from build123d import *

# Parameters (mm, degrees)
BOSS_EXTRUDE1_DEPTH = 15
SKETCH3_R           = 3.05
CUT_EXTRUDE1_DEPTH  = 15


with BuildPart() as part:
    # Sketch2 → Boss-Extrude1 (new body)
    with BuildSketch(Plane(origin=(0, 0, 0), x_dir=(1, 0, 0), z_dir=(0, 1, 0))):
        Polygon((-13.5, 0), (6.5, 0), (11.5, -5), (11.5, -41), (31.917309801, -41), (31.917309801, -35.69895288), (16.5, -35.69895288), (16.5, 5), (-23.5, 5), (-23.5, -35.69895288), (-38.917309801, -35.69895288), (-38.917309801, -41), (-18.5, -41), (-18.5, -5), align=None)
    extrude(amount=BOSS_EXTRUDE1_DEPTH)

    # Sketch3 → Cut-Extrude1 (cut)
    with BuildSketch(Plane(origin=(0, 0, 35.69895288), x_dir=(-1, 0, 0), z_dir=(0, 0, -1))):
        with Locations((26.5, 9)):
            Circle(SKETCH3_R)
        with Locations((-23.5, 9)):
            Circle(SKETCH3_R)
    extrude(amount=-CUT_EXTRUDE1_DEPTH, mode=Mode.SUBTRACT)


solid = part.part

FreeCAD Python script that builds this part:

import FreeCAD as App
import Part
import Sketcher
Q = App.Units.Quantity

doc = App.newDocument("Part")
body = doc.addObject("PartDesign::Body", "Body")

sketch1 = doc.addObject("Sketcher::SketchObject", "Sketch")
body.addObject(sketch1)
sketch1.AttachmentSupport = (doc.XZ_Plane, [""])
sketch1.MapMode = "FlatFace"
sketch1.addGeometry([
    Part.LineSegment(App.Vector(-14, 0, 0), App.Vector(6, 0, 0)),
    Part.LineSegment(App.Vector(6, 0, 0), App.Vector(12, 5, 0)),
    Part.LineSegment(App.Vector(12, 5, 0), App.Vector(12, 41, 0)),
    Part.LineSegment(App.Vector(12, 41, 0), App.Vector(32, 41, 0)),
    Part.LineSegment(App.Vector(32, 41, 0), App.Vector(32, 36, 0)),
    Part.LineSegment(App.Vector(32, 36, 0), App.Vector(16, 36, 0)),
    Part.LineSegment(App.Vector(16, 36, 0), App.Vector(16, -5, 0)),
    Part.LineSegment(App.Vector(16, -5, 0), App.Vector(-24, -5, 0)),
    Part.LineSegment(App.Vector(-24, -5, 0), App.Vector(-24, 36, 0)),
    Part.LineSegment(App.Vector(-24, 36, 0), App.Vector(-39, 36, 0)),
    Part.LineSegment(App.Vector(-39, 36, 0), App.Vector(-39, 41, 0)),
    Part.LineSegment(App.Vector(-39, 41, 0), App.Vector(-18, 41, 0)),
    Part.LineSegment(App.Vector(-18, 41, 0), App.Vector(-18, 5, 0)),
    Part.LineSegment(App.Vector(-18, 5, 0), App.Vector(-14, 0, 0)),
], False)
sketch1.addConstraint([
    Sketcher.Constraint("Coincident", 0, 2, 1, 1),
    Sketcher.Constraint("Coincident", 1, 2, 2, 1),
    Sketcher.Constraint("Coincident", 2, 2, 3, 1),
    Sketcher.Constraint("Coincident", 3, 2, 4, 1),
    Sketcher.Constraint("Coincident", 4, 2, 5, 1),
    Sketcher.Constraint("Coincident", 5, 2, 6, 1),
    Sketcher.Constraint("Coincident", 6, 2, 7, 1),
    Sketcher.Constraint("Coincident", 7, 2, 8, 1),
    Sketcher.Constraint("Coincident", 8, 2, 9, 1),
    Sketcher.Constraint("Coincident", 9, 2, 10, 1),
    Sketcher.Constraint("Coincident", 10, 2, 11, 1),
    Sketcher.Constraint("Coincident", 11, 2, 12, 1),
    Sketcher.Constraint("Coincident", 12, 2, 13, 1),
    Sketcher.Constraint("Coincident", 13, 2, 0, 1),
    Sketcher.Constraint("Horizontal", 0),
    Sketcher.Constraint("Vertical", 2),
    Sketcher.Constraint("Horizontal", 3),
    Sketcher.Constraint("Vertical", 4),
    Sketcher.Constraint("Horizontal", 5),
    Sketcher.Constraint("Vertical", 6),
    Sketcher.Constraint("Horizontal", 7),
    Sketcher.Constraint("Vertical", 8),
    Sketcher.Constraint("Horizontal", 9),
    Sketcher.Constraint("Vertical", 10),
    Sketcher.Constraint("Horizontal", 11),
    Sketcher.Constraint("Vertical", 12),
    Sketcher.Constraint("PointOnObject", 0, 2, -1),
    Sketcher.Constraint("Perpendicular", 1, 13),
    Sketcher.Constraint("Horizontal", 5, 2, 8, 2),
    Sketcher.Constraint("Horizontal", 3, 2, 10, 2),
    Sketcher.Constraint("Horizontal", 1, 2, 12, 2),
    Sketcher.Constraint("Equal", 5, 9),
    Sketcher.Constraint("Equal", 3, 11),
    Sketcher.Constraint("Equal", 1, 13),
    Sketcher.Constraint("DistanceX", 0, 1, 0, 2, Q("20 mm")),
    Sketcher.Constraint("DistanceX", 7, 2, 7, 1, Q("40 mm")),
    Sketcher.Constraint("DistanceY", 2, 1, 2, 2, Q("36 mm")),
    Sketcher.Constraint("DistanceY", -1, 1, 1, 2, Q("5 mm")),
    Sketcher.Constraint("DistanceY", 6, 2, -1, 1, Q("5 mm")),
    Sketcher.Constraint("DistanceX", -1, 1, 0, 2, Q("6.5 mm")),
    Sketcher.Constraint("DistanceX", 3, 1, 3, 2, Q("20.41731 mm")),
    Sketcher.Constraint("DistanceY", 4, 2, 4, 1, Q("5.301047 mm")),
])
pad1 = doc.addObject("PartDesign::Pad", "Pad")
body.addObject(pad1)
pad1.Profile = sketch1
pad1.Length = 15
pad1.Reversed = True

sketch2 = doc.addObject("Sketcher::SketchObject", "Sketch001")
body.addObject(sketch2)
sketch2.AttachmentSupport = (doc.XY_Plane, [""])
sketch2.MapMode = "FlatFace"
sketch2.AttachmentOffset = App.Placement(App.Vector(0, 0, 35.698953), App.Rotation())
sketch2.addGeometry([
    Part.Circle(App.Vector(-26.5, 9, 0), App.Vector(0, 0, 1), 3),
    Part.Circle(App.Vector(23.5, 9, 0), App.Vector(0, 0, 1), 3),
], False)
sketch2.addConstraint([
    Sketcher.Constraint("Equal", 0, 1),
    Sketcher.Constraint("Horizontal", 0, 3, 1, 3),
    Sketcher.Constraint("Diameter", 0, Q("6.1 mm")),
    Sketcher.Constraint("DistanceY", -1, 1, 0, 3, Q("9 mm")),
    Sketcher.Constraint("DistanceX", 0, 3, 1, 3, Q("50 mm")),
    Sketcher.Constraint("DistanceX", 0, 3, -1, 1, Q("26.5 mm")),
])
pocket1 = doc.addObject("PartDesign::Pocket", "Pocket")
body.addObject(pocket1)
pocket1.Profile = sketch2
pocket1.Length = 15
pocket1.Reversed = True

doc.recompute()
